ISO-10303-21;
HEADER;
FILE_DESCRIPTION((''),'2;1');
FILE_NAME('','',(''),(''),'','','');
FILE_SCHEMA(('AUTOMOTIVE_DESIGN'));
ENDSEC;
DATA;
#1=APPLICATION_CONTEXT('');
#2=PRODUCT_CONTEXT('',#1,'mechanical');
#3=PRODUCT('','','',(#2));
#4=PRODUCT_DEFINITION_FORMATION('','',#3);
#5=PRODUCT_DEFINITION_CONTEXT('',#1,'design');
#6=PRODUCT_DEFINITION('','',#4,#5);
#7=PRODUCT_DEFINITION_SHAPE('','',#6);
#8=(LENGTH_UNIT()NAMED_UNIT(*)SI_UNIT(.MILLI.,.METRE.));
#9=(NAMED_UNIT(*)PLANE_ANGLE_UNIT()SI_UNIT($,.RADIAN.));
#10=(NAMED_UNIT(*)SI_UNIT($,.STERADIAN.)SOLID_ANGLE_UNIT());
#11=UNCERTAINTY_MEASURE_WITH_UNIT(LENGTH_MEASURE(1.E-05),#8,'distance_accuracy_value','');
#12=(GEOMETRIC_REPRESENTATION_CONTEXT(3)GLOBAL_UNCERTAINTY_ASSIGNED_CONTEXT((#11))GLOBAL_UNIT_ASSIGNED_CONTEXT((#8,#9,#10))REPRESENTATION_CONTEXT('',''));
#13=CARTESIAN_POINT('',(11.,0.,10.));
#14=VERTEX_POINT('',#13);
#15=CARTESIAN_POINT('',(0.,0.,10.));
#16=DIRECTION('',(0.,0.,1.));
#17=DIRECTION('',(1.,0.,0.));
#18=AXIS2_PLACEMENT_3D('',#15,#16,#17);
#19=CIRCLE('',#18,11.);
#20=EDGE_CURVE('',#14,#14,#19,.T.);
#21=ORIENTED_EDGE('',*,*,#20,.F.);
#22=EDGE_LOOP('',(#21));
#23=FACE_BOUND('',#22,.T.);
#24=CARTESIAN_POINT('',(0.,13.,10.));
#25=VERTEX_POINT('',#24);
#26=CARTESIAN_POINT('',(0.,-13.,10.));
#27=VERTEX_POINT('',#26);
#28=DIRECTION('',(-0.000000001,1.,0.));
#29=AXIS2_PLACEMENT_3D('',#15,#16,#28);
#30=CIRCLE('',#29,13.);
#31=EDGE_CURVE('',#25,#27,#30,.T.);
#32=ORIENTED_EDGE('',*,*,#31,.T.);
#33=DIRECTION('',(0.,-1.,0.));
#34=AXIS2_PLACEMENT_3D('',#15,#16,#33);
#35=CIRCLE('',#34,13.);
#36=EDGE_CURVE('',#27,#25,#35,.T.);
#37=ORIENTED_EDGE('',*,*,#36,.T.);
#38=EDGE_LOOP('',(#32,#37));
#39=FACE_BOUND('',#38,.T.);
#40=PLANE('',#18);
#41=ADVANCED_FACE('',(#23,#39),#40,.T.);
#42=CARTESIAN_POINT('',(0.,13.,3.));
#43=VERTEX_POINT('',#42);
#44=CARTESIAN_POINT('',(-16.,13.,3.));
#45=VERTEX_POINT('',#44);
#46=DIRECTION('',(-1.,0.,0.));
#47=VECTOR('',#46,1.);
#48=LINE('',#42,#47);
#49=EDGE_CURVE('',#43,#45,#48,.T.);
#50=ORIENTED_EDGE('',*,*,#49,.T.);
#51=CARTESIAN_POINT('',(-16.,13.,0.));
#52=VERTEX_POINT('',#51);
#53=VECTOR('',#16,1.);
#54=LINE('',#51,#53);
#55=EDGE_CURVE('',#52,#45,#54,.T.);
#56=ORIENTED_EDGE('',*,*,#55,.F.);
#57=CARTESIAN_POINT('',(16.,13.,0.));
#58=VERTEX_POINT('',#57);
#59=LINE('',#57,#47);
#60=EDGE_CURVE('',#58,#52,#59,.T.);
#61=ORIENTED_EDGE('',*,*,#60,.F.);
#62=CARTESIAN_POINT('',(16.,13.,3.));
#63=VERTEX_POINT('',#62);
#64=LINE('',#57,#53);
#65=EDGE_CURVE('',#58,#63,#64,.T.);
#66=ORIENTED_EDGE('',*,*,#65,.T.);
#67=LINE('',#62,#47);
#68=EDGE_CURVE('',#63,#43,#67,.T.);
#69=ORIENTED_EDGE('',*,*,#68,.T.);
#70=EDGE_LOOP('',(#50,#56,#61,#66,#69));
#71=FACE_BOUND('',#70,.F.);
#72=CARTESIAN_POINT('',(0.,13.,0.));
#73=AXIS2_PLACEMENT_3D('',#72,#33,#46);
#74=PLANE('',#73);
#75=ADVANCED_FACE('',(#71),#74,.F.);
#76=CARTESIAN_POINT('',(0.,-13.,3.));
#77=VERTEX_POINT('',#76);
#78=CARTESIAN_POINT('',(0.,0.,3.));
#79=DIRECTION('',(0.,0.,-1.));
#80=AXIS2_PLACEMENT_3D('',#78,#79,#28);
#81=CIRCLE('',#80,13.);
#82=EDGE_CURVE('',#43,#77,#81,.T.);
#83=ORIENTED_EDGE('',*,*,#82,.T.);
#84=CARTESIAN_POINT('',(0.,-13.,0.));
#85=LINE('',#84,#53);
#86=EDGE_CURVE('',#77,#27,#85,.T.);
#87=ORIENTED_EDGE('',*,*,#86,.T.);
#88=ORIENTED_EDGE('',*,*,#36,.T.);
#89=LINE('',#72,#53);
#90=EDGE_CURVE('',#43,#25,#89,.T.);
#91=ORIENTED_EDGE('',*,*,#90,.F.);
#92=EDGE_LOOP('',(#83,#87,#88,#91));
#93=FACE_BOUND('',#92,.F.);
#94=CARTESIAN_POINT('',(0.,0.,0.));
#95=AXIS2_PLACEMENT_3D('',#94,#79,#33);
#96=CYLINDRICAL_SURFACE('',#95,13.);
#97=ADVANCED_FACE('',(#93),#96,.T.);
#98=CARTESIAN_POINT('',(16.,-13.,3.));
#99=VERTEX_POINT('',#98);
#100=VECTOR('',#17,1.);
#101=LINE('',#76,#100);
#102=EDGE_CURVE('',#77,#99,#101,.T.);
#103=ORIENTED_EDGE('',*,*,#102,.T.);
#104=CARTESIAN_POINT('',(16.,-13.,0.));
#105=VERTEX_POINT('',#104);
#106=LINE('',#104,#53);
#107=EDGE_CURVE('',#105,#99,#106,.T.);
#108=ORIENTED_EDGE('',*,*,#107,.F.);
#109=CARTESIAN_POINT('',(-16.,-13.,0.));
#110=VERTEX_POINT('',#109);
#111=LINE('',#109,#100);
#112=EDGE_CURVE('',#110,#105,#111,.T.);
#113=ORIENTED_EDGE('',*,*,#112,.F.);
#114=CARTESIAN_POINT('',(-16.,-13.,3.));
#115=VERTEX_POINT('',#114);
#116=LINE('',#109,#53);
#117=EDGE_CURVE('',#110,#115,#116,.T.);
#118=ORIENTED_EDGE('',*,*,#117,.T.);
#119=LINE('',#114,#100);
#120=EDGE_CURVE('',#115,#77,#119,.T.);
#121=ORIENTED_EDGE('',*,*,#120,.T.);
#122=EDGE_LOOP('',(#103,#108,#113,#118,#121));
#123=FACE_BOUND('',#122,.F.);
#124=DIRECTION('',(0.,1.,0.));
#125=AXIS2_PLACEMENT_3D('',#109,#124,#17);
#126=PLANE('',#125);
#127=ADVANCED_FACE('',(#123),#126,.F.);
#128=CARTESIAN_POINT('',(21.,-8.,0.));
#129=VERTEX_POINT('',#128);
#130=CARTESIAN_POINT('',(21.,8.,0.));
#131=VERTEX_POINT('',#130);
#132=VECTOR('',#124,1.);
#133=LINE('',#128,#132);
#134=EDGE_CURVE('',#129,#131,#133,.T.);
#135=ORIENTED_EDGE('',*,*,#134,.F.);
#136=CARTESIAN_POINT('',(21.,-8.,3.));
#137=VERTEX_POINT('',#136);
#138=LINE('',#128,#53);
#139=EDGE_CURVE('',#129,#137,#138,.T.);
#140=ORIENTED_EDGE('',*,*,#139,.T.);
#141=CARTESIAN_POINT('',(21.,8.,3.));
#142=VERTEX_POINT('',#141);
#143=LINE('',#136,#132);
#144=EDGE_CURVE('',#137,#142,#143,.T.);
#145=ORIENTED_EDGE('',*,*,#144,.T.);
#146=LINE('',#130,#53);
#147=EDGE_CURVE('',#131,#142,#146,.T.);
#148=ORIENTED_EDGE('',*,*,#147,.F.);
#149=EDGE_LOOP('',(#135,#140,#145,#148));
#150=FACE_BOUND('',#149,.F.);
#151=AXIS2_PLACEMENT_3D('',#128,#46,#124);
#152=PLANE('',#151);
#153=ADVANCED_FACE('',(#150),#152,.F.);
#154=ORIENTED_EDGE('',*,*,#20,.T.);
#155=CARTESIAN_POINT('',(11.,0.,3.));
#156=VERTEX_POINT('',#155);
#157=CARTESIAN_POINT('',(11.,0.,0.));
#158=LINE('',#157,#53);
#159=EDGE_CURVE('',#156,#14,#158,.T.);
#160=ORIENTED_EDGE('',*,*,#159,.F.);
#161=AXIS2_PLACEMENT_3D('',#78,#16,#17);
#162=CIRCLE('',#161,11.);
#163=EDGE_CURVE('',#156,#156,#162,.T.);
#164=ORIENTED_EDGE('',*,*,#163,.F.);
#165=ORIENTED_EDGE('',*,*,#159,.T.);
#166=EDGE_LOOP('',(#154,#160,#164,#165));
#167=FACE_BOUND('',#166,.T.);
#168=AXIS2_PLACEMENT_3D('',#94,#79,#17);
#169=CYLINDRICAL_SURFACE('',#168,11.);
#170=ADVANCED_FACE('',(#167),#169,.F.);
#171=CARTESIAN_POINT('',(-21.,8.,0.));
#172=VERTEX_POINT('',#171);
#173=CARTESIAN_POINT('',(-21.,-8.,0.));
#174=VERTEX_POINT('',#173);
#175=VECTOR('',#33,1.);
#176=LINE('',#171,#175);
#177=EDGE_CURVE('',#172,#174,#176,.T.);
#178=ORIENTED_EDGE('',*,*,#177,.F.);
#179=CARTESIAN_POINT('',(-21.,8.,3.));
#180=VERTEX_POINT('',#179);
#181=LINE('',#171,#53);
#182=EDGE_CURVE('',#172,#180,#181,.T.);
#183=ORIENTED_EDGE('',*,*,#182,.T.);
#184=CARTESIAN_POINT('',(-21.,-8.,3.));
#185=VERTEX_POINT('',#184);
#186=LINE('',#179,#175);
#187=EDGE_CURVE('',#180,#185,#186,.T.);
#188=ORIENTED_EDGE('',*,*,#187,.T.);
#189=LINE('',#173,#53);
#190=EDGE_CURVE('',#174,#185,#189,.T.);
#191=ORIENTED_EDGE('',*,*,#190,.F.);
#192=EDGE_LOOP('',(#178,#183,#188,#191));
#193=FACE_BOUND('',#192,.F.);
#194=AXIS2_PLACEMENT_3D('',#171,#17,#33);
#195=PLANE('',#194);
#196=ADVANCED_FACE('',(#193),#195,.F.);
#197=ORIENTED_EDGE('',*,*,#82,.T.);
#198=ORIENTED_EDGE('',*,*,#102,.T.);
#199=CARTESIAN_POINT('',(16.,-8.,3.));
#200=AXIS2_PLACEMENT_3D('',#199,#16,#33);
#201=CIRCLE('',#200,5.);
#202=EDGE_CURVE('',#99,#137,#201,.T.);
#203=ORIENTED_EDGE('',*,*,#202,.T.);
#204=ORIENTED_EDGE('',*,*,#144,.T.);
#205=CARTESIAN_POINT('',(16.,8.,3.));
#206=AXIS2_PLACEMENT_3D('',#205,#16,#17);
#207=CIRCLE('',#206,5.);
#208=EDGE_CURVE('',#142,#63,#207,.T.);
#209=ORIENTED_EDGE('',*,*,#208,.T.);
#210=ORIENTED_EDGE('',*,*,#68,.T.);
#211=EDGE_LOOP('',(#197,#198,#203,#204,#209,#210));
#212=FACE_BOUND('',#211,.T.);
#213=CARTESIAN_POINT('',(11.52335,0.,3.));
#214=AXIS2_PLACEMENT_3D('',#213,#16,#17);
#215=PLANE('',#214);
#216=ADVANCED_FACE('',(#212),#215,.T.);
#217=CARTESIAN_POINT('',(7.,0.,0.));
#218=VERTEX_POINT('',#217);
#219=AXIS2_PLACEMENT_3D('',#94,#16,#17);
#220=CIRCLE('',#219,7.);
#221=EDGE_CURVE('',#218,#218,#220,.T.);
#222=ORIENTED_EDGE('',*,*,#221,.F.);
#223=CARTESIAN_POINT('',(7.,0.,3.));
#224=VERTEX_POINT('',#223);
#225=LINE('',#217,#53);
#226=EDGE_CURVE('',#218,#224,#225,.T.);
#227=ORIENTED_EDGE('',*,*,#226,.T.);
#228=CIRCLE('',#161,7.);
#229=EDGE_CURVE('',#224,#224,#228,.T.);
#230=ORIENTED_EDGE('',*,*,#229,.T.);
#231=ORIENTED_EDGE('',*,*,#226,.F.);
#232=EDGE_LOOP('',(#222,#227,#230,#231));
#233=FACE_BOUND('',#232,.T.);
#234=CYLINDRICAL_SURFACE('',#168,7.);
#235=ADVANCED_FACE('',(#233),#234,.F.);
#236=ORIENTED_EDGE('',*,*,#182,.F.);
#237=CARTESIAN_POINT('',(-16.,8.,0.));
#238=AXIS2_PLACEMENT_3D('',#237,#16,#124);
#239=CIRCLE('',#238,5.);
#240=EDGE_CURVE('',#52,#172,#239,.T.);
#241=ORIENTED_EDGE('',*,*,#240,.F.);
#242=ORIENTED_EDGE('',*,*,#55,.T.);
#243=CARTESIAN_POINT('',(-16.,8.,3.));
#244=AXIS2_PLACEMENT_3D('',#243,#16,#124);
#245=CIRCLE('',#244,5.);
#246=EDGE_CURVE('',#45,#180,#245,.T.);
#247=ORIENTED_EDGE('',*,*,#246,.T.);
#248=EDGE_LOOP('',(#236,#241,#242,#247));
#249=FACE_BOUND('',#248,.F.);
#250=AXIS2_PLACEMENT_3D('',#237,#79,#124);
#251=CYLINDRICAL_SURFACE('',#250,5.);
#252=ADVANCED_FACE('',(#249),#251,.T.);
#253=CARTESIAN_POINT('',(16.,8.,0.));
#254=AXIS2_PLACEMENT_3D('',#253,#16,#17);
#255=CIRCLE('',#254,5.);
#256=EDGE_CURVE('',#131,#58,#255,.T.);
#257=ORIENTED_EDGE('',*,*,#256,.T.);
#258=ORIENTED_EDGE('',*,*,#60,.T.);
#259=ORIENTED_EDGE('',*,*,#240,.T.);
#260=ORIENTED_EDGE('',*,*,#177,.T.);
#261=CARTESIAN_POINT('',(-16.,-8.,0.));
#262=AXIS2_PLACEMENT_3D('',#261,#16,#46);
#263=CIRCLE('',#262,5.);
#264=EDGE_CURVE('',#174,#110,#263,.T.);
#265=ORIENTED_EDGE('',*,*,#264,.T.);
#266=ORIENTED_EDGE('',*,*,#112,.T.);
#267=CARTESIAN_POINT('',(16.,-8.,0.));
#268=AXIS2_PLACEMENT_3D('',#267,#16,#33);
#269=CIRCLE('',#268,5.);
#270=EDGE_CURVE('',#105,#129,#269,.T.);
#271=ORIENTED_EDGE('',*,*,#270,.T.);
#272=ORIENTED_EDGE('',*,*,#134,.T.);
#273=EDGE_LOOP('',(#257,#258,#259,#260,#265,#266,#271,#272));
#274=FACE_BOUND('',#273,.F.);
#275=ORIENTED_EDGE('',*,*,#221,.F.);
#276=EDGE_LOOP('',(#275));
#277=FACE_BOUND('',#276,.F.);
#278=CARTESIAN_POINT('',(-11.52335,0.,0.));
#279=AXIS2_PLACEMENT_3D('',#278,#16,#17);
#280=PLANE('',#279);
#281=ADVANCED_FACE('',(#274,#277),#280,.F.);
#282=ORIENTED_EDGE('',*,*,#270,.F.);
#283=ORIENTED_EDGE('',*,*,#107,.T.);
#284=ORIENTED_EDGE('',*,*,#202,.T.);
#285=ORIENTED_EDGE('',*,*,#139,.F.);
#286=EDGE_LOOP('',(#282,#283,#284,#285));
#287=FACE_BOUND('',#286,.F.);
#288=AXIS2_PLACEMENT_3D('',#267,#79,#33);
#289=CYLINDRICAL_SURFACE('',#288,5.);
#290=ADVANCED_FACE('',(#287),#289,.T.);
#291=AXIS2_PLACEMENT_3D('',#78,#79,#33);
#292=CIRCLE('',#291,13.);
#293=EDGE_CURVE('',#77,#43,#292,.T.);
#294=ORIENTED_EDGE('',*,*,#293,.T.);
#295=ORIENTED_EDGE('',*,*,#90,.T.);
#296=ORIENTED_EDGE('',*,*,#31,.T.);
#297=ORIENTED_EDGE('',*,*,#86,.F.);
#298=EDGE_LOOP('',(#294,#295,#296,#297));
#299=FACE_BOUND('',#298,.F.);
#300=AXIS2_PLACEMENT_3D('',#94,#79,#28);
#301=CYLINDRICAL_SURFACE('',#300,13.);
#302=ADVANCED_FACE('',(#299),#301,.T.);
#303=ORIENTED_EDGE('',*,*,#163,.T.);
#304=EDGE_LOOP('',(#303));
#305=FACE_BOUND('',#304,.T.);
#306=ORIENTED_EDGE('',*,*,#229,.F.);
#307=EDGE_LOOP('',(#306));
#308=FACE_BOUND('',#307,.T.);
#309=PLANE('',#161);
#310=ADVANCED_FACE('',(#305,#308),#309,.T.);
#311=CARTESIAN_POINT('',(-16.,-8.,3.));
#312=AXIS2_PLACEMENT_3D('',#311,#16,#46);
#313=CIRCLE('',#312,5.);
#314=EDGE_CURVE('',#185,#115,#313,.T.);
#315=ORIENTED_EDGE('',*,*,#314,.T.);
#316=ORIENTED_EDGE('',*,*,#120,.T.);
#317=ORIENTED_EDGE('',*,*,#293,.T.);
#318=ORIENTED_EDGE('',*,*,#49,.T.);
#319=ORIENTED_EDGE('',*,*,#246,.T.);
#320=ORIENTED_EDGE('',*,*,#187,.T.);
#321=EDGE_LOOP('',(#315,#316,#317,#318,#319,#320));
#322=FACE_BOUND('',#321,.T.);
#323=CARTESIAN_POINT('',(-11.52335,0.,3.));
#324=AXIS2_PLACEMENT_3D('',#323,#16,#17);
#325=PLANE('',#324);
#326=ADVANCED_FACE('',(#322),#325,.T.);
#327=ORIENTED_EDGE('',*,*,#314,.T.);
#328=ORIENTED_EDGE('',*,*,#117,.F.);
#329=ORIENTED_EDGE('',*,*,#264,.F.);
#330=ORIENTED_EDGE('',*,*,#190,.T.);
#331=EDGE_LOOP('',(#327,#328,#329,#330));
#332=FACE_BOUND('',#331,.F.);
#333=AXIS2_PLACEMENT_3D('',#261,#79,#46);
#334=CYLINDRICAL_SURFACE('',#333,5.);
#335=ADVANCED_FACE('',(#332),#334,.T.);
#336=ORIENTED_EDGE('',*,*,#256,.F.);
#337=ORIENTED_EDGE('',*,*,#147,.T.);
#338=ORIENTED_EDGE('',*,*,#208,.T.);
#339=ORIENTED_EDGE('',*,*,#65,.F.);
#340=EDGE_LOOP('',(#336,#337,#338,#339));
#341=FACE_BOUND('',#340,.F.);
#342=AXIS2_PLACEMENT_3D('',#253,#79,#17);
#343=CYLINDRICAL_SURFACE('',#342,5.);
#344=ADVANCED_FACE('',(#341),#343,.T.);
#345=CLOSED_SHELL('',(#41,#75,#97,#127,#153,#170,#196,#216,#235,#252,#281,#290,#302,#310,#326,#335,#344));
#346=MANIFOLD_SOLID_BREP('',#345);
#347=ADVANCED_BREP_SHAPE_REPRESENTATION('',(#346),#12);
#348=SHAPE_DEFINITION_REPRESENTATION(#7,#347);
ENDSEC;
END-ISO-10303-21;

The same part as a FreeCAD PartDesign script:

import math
import FreeCAD as App
import Part
import Sketcher

V = App.Vector
Q = App.Units.Quantity

doc = App.newDocument("Part")
params = doc.addObject("Spreadsheet::Sheet", "Params")
for row, (alias, value) in enumerate([
    ("sketch1_radius", "5 mm"),
    ("sketch1_radius2", "13 mm"),
    ("pad1_length", "3 mm"),
    ("sketch2_radius", "13 mm"),
    ("sketch2_radius2", "5 mm"),
    ("pad2_length", "3 mm"),
    ("sketch3_diameter", "22 mm"),
    ("sketch3_diameter2", "14 mm"),
    ("pad3_length", "3 mm"),
    ("sketch4_diameter", "22 mm"),
    ("sketch4_radius", "13 mm"),
    ("pad4_length", "10 mm"),
], start=1):
    params.set(f"A{row}", alias)
    params.set(f"B{row}", "=" + value)
    params.setAlias(f"B{row}", alias)

body = doc.addObject("PartDesign::Body", "Body")

# Sketch on XY plane
sketch1 = doc.addObject("Sketcher::SketchObject", "Sketch")
body.addObject(sketch1)
sketch1.AttachmentSupport = (doc.XY_Plane, [""])
sketch1.MapMode = "FlatFace"
sketch1.addGeometry([
    Part.ArcOfCircle(Part.Circle(V(16, 8, 0), V(0, 0, 1), 5), math.radians(0), math.radians(90)),  # 0
    Part.LineSegment(V(16, 13, 0), V(0, 13, 0)),  # 1
    Part.ArcOfCircle(Part.Circle(V(0, 0, 0), V(0, 0, 1), 13), math.radians(-90), math.radians(90)),  # 2
    Part.LineSegment(V(0, -13, 0), V(16, -13, 0)),  # 3
    Part.ArcOfCircle(Part.Circle(V(16, -8, 0), V(0, 0, 1), 5), math.radians(-90), math.radians(0)),  # 4
    Part.LineSegment(V(21, -8, 0), V(21, 8, 0)),  # 5
], False)
sketch1.addConstraint([
    Sketcher.Constraint("Tangent", 0, 2, 1, 1),
    Sketcher.Constraint("Tangent", 1, 2, 2, 2),
    Sketcher.Constraint("Tangent", 2, 1, 3, 1),
    Sketcher.Constraint("Tangent", 3, 2, 4, 1),
    Sketcher.Constraint("Tangent", 4, 2, 5, 1),
    Sketcher.Constraint("Tangent", 5, 2, 0, 1),
    Sketcher.Constraint("Horizontal", 1),
    Sketcher.Constraint("Horizontal", 3),
    Sketcher.Constraint("Vertical", 5),
    Sketcher.Constraint("Coincident", 2, 3, -1, 1),
    Sketcher.Constraint("Equal", 0, 4),
    Sketcher.Constraint("Equal", 3, 5),
    Sketcher.Constraint("Radius", 0, Q("5 mm")),
    Sketcher.Constraint("Radius", 2, Q("13 mm")),
])
sketch1.setExpression("Constraints[12]", "Params.sketch1_radius")
sketch1.setExpression("Constraints[13]", "Params.sketch1_radius2")
pad1 = doc.addObject("PartDesign::Pad", "Pad")
body.addObject(pad1)
pad1.Profile = sketch1
pad1.setExpression("Length", "Params.pad1_length")
body2 = doc.addObject("PartDesign::Body", "Body001")

# Sketch on XY plane
sketch2 = doc.addObject("Sketcher::SketchObject", "Sketch001")
body2.addObject(sketch2)
sketch2.AttachmentSupport = (doc.getObject("XY_Plane001"), [""])
sketch2.MapMode = "FlatFace"
sketch2.addGeometry([
    Part.ArcOfCircle(Part.Circle(V(0, 0, 0), V(0, 0, 1), 13), math.radians(90), math.radians(270)),  # 0
    Part.LineSegment(V(0, 13, 0), V(-16, 13, 0)),  # 1
    Part.ArcOfCircle(Part.Circle(V(-16, 8, 0), V(0, 0, 1), 5), math.radians(90), math.radians(180)),  # 2
    Part.LineSegment(V(-21, 8, 0), V(-21, -8, 0)),  # 3
    Part.ArcOfCircle(Part.Circle(V(-16, -8, 0), V(0, 0, 1), 5), math.radians(180), math.radians(270)),  # 4
    Part.LineSegment(V(-16, -13, 0), V(0, -13, 0)),  # 5
], False)
sketch2.addConstraint([
    Sketcher.Constraint("Tangent", 0, 1, 1, 1),
    Sketcher.Constraint("Tangent", 1, 2, 2, 1),
    Sketcher.Constraint("Tangent", 2, 2, 3, 1),
    Sketcher.Constraint("Tangent", 3, 2, 4, 1),
    Sketcher.Constraint("Tangent", 4, 2, 5, 1),
    Sketcher.Constraint("Tangent", 5, 2, 0, 2),
    Sketcher.Constraint("Horizontal", 1),
    Sketcher.Constraint("Vertical", 3),
    Sketcher.Constraint("Horizontal", 5),
    Sketcher.Constraint("Coincident", 0, 3, -1, 1),
    Sketcher.Constraint("Equal", 2, 4),
    Sketcher.Constraint("Equal", 5, 3),
    Sketcher.Constraint("Radius", 0, Q("13 mm")),
    Sketcher.Constraint("Radius", 2, Q("5 mm")),
])
sketch2.setExpression("Constraints[12]", "Params.sketch2_radius")
sketch2.setExpression("Constraints[13]", "Params.sketch2_radius2")
pad2 = doc.addObject("PartDesign::Pad", "Pad001")
body2.addObject(pad2)
pad2.Profile = sketch2
pad2.setExpression("Length", "Params.pad2_length")
body3 = doc.addObject("PartDesign::Body", "Body002")

# Sketch on XY plane
sketch3 = doc.addObject("Sketcher::SketchObject", "Sketch002")
body3.addObject(sketch3)
sketch3.AttachmentSupport = (doc.getObject("XY_Plane002"), [""])
sketch3.MapMode = "FlatFace"
sketch3.addGeometry([
    Part.Circle(V(0, 0, 0), V(0, 0, 1), 11),
    Part.Circle(V(0, 0, 0), V(0, 0, 1), 7),
], False)
sketch3.addConstraint([
    Sketcher.Constraint("Coincident", 0, 3, -1, 1),
    Sketcher.Constraint("Coincident", 1, 3, -1, 1),
    Sketcher.Constraint("Diameter", 0, Q("22 mm")),
    Sketcher.Constraint("Diameter", 1, Q("14 mm")),
])
sketch3.setExpression("Constraints[2]", "Params.sketch3_diameter")
sketch3.setExpression("Constraints[3]", "Params.sketch3_diameter2")
pad3 = doc.addObject("PartDesign::Pad", "Pad002")
body3.addObject(pad3)
pad3.Profile = sketch3
pad3.setExpression("Length", "Params.pad3_length")
body.AllowCompound = True
doc.recompute()

boolean = doc.addObject("PartDesign::Boolean", "Boolean")
body.addObject(boolean)
boolean.Type = "Fuse"
boolean.addObjects([body2])
doc.recompute()

boolean2 = doc.addObject("PartDesign::Boolean", "Boolean001")
body.addObject(boolean2)
boolean2.Type = "Fuse"
boolean2.addObjects([body3])

# Sketch on XY plane
sketch4 = doc.addObject("Sketcher::SketchObject", "Sketch003")
body.addObject(sketch4)
sketch4.AttachmentSupport = (doc.XY_Plane, [""])
sketch4.MapMode = "FlatFace"
sketch4.addGeometry([
    Part.ArcOfCircle(Part.Circle(V(0, 0, 0), V(0, 0, 1), 13), math.radians(90), math.radians(270)),
    Part.ArcOfCircle(Part.Circle(V(0, 0, 0), V(0, 0, 1), 13), math.radians(-90), math.radians(90)),
    Part.Circle(V(0, 0, 0), V(0, 0, 1), 11),
], False)
sketch4.addConstraint([
    Sketcher.Constraint("Tangent", 0, 1, 1, 2),
    Sketcher.Constraint("Coincident", 1, 1, 0, 2),
    Sketcher.Constraint("Coincident", 0, 3, -1, 1),
    Sketcher.Constraint("Coincident", 2, 3, -1, 1),
    Sketcher.Constraint("PointOnObject", 0, 1, -2),
    Sketcher.Constraint("PointOnObject", 1, 1, -2),
    Sketcher.Constraint("Diameter", 2, Q("22 mm")),
    Sketcher.Constraint("Radius", 0, Q("13 mm")),
])
sketch4.setExpression("Constraints[6]", "Params.sketch4_diameter")
sketch4.setExpression("Constraints[7]", "Params.sketch4_radius")
pad4 = doc.addObject("PartDesign::Pad", "Pad003")
body.addObject(pad4)
pad4.Profile = sketch4
pad4.setExpression("Length", "Params.pad4_length")

doc.recompute()
